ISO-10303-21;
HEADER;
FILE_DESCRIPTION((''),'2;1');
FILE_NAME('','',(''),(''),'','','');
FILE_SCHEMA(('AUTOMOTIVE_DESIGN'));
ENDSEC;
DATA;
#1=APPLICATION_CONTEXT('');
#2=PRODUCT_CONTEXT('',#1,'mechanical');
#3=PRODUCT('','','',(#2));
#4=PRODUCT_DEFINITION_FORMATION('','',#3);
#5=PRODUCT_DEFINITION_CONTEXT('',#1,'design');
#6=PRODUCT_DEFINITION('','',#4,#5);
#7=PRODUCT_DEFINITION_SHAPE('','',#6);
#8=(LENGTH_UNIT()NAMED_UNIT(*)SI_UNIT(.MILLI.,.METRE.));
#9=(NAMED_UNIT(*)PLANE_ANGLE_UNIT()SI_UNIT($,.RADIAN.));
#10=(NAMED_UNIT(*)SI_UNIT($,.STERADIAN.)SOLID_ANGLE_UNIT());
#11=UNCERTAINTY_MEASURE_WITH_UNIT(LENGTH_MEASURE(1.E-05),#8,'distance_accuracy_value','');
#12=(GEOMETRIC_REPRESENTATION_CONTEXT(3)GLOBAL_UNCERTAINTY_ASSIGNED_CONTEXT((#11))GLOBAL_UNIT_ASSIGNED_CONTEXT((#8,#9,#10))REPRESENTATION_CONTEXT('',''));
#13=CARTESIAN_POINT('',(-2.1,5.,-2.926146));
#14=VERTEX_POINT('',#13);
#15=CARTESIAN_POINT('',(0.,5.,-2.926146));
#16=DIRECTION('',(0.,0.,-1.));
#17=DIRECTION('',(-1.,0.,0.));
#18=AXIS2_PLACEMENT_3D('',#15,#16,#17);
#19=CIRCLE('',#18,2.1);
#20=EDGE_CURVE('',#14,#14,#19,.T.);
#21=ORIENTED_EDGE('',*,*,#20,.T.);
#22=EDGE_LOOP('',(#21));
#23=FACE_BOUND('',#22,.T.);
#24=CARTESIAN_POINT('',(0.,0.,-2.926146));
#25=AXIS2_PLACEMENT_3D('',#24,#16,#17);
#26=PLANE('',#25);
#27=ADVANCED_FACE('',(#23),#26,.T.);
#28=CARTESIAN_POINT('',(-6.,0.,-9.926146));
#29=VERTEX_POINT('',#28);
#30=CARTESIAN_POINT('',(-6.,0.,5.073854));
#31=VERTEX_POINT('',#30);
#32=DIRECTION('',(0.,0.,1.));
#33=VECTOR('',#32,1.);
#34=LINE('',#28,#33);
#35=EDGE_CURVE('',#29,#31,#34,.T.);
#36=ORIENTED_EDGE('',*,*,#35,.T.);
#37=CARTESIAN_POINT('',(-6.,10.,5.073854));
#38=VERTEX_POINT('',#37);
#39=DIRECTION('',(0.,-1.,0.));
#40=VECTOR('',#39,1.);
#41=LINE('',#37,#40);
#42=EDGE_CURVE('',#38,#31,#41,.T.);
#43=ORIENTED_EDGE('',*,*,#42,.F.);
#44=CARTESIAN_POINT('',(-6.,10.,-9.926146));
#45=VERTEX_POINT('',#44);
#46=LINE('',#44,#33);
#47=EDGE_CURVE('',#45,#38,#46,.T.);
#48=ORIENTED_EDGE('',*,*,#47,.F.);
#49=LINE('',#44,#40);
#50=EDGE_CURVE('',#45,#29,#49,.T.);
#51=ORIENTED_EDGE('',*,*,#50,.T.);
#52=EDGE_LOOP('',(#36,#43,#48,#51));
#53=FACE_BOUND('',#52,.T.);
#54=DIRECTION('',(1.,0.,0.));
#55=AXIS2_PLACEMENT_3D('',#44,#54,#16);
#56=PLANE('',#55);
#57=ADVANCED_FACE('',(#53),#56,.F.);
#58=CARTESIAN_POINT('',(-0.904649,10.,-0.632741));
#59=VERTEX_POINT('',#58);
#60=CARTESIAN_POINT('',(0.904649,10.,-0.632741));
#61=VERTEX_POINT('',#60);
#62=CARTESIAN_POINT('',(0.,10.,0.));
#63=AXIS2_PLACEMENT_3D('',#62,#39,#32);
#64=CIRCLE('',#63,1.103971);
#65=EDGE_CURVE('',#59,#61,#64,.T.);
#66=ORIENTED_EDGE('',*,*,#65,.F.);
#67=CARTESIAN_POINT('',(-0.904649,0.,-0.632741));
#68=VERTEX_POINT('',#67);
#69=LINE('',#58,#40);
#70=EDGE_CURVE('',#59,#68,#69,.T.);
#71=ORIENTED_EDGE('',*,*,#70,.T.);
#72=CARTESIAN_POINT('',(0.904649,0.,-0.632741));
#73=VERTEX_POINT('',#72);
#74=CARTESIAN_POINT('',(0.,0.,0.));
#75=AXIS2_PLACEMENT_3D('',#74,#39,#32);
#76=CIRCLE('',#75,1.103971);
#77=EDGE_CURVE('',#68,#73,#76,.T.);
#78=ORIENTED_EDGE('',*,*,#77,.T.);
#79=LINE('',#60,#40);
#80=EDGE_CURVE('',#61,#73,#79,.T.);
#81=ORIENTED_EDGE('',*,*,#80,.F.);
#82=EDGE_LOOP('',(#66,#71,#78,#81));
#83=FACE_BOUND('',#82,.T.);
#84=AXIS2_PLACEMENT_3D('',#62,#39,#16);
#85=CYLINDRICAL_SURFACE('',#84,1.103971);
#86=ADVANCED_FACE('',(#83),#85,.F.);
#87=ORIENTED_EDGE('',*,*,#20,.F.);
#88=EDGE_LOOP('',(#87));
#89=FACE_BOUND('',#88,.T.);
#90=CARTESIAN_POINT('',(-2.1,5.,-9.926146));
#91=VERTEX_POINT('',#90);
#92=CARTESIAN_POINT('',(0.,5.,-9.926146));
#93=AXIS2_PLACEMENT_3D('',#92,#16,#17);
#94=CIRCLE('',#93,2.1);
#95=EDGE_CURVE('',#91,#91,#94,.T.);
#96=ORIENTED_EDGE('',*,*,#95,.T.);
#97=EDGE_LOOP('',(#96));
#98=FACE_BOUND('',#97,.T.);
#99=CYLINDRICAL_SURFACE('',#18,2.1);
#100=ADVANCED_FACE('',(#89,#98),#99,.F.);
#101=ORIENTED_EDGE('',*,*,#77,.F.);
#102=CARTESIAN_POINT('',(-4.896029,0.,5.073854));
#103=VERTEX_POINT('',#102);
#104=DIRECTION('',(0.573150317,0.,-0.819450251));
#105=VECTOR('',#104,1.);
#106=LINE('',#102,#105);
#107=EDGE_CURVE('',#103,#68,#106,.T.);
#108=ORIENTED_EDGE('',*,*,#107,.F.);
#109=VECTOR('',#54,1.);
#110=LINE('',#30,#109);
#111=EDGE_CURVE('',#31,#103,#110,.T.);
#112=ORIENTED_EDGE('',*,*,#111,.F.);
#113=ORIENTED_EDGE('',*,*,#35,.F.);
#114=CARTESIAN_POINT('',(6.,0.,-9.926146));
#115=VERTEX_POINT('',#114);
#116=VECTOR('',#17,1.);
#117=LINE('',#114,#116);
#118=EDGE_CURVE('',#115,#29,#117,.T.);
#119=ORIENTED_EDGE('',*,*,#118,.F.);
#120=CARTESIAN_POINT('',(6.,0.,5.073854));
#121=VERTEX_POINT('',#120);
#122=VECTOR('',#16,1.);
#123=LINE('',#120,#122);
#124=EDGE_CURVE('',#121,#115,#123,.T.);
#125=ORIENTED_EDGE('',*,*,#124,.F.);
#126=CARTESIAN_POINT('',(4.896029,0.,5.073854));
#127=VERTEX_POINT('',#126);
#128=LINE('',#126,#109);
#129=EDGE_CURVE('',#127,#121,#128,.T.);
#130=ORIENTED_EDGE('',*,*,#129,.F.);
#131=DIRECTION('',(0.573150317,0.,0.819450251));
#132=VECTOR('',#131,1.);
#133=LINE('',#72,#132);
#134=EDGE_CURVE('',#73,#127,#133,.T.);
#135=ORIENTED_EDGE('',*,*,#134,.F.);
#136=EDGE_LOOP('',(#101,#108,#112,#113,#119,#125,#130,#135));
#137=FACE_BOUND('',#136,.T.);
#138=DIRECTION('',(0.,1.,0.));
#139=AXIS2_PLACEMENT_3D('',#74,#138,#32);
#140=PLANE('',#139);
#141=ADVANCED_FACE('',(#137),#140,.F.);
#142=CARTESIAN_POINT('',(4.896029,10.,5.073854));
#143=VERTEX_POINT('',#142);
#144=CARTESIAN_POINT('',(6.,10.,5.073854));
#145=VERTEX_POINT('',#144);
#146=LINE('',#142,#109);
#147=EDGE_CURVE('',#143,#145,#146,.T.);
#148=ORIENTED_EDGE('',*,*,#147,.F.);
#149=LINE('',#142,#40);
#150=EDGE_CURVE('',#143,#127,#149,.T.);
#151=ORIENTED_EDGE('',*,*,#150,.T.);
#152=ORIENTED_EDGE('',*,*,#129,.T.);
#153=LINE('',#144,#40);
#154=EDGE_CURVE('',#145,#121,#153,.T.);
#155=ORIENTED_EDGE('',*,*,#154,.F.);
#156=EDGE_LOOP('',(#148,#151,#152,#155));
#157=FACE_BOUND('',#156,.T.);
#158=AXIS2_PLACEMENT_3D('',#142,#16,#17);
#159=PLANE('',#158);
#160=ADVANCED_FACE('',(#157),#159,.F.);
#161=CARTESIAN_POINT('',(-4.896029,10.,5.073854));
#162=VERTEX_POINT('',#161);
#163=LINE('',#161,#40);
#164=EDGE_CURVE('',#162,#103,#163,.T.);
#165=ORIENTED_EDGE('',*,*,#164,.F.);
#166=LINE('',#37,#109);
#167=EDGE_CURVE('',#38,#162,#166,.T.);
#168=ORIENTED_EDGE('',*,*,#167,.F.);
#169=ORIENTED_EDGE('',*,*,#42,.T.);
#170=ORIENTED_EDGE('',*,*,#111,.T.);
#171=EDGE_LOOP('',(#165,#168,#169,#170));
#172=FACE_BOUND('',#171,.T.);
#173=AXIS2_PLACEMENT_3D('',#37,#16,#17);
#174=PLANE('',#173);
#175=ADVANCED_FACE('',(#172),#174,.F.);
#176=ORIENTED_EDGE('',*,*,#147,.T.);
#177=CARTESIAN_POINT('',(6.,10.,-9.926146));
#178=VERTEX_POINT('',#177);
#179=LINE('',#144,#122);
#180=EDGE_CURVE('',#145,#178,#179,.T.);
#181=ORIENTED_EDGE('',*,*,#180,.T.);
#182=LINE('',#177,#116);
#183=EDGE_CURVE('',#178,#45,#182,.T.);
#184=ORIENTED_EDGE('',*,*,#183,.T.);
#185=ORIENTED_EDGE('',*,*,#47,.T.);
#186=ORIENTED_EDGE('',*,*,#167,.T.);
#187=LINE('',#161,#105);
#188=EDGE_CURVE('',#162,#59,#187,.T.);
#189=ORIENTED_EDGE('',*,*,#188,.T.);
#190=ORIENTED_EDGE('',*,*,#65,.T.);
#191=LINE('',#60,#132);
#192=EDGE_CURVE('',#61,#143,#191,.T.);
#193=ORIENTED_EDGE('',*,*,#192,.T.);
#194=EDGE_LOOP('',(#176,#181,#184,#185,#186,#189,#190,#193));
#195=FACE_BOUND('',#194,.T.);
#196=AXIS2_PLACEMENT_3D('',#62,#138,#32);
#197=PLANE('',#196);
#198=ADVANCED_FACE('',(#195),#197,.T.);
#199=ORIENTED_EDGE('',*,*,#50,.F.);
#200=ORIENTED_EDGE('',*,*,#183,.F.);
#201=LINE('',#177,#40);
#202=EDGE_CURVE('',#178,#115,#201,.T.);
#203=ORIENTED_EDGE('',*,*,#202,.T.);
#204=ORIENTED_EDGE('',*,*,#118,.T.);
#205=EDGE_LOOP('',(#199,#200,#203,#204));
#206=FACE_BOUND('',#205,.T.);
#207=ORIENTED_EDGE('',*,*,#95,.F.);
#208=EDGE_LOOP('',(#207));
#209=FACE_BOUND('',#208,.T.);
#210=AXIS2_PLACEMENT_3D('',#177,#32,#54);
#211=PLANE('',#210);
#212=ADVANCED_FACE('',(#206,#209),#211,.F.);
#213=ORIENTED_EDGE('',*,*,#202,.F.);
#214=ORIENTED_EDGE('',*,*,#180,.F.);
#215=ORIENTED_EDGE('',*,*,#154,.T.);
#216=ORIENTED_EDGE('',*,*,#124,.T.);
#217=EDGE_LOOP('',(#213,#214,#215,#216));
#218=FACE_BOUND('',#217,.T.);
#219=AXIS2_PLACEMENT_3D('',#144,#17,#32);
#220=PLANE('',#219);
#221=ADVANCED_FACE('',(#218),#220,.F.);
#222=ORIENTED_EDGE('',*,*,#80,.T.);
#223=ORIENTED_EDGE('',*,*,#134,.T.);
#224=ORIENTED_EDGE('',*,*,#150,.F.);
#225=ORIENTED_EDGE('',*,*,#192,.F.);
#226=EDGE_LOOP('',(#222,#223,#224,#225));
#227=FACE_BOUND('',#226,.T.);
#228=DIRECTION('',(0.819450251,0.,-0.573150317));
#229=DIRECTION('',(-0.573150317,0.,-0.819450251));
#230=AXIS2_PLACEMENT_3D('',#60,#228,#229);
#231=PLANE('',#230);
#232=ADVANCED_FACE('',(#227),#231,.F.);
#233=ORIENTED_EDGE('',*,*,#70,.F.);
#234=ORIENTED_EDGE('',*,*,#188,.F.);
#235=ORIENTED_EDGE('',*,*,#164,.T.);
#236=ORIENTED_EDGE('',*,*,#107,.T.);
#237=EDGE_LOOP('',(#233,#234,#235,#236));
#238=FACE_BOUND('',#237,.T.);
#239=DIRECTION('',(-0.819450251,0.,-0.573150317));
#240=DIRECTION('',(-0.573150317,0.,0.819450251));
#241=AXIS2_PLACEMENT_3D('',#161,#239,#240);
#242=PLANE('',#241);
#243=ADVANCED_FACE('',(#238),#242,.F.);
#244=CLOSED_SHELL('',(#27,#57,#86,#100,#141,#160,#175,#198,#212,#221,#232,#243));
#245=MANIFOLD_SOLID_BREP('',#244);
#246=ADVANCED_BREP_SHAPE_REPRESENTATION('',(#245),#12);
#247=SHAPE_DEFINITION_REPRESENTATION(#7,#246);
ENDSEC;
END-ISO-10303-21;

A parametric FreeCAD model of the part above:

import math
import FreeCAD as App
import Part
import Sketcher

V = App.Vector

doc = App.newDocument("Part")
params = doc.addObject("Spreadsheet::Sheet", "Params")
for row, (alias, value) in enumerate([
    ("sketch1_width", "12 mm"),
    ("sketch1_height", "15 mm"),
    ("pad1_length", "10 mm"),
    ("sketch2_radius", "2.1 mm"),
    ("pocket1_length", "7 mm"),
], start=1):
    params.set(f"A{row}", alias)
    params.set(f"B{row}", "=" + value)
    params.setAlias(f"B{row}", alias)

body = doc.addObject("PartDesign::Body", "Body")

sketch1 = body.newObject("Sketcher::SketchObject", "Sketch")
sketch1.AttachmentSupport = (doc.getObject("XZ_Plane"), [""])
sketch1.MapMode = "FlatFace"
sketch1.addGeometry([
    Part.LineSegment(V(0.9, -0.6, 0), V(4.9, 5.1, 0)),
    Part.LineSegment(V(4.9, 5.1, 0), V(6, 5.1, 0)),
    Part.LineSegment(V(6, 5.1, 0), V(6, -9.9, 0)),
    Part.LineSegment(V(6, -9.9, 0), V(-6, -9.9, 0)),
    Part.LineSegment(V(-6, -9.9, 0), V(-6, 5.1, 0)),
    Part.LineSegment(V(-6, 5.1, 0), V(-4.9, 5.1, 0)),
    Part.LineSegment(V(-4.9, 5.1, 0), V(-0.9, -0.6, 0)),
    Part.ArcOfCircle(Part.Circle(V(0, 0, 0), V(0, 0, 1), 1.1), math.radians(-145), math.radians(-35)),
], False)
sketch1.addConstraint([
    Sketcher.Constraint("Coincident", 0, 2, 1, 1),
    Sketcher.Constraint("Coincident", 1, 2, 2, 1),
    Sketcher.Constraint("Coincident", 2, 2, 3, 1),
    Sketcher.Constraint("Coincident", 3, 2, 4, 1),
    Sketcher.Constraint("Coincident", 4, 2, 5, 1),
    Sketcher.Constraint("Coincident", 5, 2, 6, 1),
    Sketcher.Constraint("Tangent", 6, 2, 7, 1),
    Sketcher.Constraint("Tangent", 7, 2, 0, 1),
    Sketcher.Constraint("Horizontal", 1),
    Sketcher.Constraint("Vertical", 2),
    Sketcher.Constraint("Horizontal", 3),
    Sketcher.Constraint("Vertical", 4),
    Sketcher.Constraint("Horizontal", 5),
    Sketcher.Constraint("Coincident", 7, 3, -1, 1),
    Sketcher.Constraint("Symmetric", 1, 2, 4, 2, -2),
    Sketcher.Constraint("Horizontal", 6, 2, 7, 2),
    Sketcher.Constraint("DistanceX", 3, 2, 3, 1, 12.0),
    Sketcher.Constraint("DistanceY", 2, 2, 2, 1, 15.0),
    Sketcher.Constraint("Radius", 7, 1.103971),
    Sketcher.Constraint("DistanceX", 1, 1, 1, 2, 1.103971),
    Sketcher.Constraint("DistanceX", 6, 2, 7, 2, 1.809299),
])
sketch1.setExpression("Constraints[16]", "Params.sketch1_width")
sketch1.setExpression("Constraints[17]", "Params.sketch1_height")
pad1 = body.newObject("PartDesign::Pad", "Pad")
pad1.Profile = sketch1
pad1.setExpression("Length", "Params.pad1_length")
pad1.Reversed = True

sketch2 = body.newObject("Sketcher::SketchObject", "Sketch001")
sketch2.AttachmentSupport = (doc.getObject("XY_Plane"), [""])
sketch2.MapMode = "FlatFace"
sketch2.AttachmentOffset = App.Placement(V(0, 0, -9.926146), App.Rotation())
sketch2.addGeometry([
    Part.ArcOfCircle(Part.Circle(V(0, 5, 0), V(0, 0, 1), 2.1), math.radians(-90), math.radians(90)),
    Part.ArcOfCircle(Part.Circle(V(0, 5, 0), V(0, 0, 1), 2.1), math.radians(-180), math.radians(-90)),
    Part.ArcOfCircle(Part.Circle(V(0, 5, 0), V(0, 0, 1), 2.1), math.radians(90), math.radians(180)),
], False)
sketch2.addConstraint([
    Sketcher.Constraint("Tangent", 0, 1, 1, 2),
    Sketcher.Constraint("Tangent", 1, 1, 2, 2),
    Sketcher.Constraint("Tangent", 2, 1, 0, 2),
    Sketcher.Constraint("PointOnObject", 0, 3, -2),
    Sketcher.Constraint("PointOnObject", 0, 1, -2),
    Sketcher.Constraint("PointOnObject", 2, 1, -2),
    Sketcher.Constraint("Horizontal", 2, 3, 1, 1),
    Sketcher.Constraint("Radius", 0, 2.1),
    Sketcher.Constraint("DistanceY", -1, 1, 0, 3, 5.0),
])
sketch2.setExpression("Constraints[7]", "Params.sketch2_radius")
pocket1 = body.newObject("PartDesign::Pocket", "Pocket")
pocket1.Profile = sketch2
pocket1.setExpression("Length", "Params.pocket1_length")
pocket1.Reversed = True

doc.recompute()
